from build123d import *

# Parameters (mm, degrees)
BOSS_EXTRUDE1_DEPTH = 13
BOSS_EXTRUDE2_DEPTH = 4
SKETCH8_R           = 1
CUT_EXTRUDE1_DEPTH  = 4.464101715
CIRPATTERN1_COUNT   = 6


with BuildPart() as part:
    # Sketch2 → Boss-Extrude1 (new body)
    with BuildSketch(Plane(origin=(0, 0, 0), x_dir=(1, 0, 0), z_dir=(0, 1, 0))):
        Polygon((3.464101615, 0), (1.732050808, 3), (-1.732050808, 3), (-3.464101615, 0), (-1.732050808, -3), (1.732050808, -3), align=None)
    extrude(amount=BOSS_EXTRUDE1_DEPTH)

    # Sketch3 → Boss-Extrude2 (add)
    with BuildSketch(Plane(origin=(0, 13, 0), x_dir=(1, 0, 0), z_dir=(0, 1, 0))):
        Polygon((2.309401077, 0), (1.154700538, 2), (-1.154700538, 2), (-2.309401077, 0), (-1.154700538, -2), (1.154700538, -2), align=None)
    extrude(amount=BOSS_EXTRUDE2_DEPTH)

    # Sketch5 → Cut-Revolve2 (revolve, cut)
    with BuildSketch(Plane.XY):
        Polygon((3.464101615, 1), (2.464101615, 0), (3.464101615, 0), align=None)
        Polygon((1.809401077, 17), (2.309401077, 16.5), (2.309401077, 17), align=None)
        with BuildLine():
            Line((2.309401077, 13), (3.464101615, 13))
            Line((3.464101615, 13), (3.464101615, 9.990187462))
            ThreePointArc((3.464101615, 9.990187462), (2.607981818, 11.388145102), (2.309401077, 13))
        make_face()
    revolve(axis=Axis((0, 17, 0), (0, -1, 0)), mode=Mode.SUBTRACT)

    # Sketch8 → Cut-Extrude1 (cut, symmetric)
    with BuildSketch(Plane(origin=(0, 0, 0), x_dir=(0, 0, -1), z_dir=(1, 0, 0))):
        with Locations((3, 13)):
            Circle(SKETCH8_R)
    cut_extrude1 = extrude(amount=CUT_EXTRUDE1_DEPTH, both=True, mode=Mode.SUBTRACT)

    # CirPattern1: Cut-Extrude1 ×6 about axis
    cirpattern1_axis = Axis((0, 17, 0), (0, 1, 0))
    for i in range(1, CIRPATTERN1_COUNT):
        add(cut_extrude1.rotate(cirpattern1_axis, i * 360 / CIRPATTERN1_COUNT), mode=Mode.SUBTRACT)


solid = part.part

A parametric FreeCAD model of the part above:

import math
import FreeCAD as App
import Part
import Sketcher
Q = App.Units.Quantity


def add_polygon(sketch, points):
    """Adds a closed chain of lines whose ends are joined by coincident constraints."""
    first, n = sketch.GeometryCount, len(points)
    for a, b in zip(points, points[1:] + points[:1]):
        sketch.addGeometry(Part.LineSegment(App.Vector(*a, 0), App.Vector(*b, 0)), False)
    for i in range(n):
        sketch.addConstraint(Sketcher.Constraint("Coincident", first + i, 2, first + (i + 1) % n, 1))

doc = App.newDocument("Part")
params = doc.addObject("Spreadsheet::Sheet", "Params")
for row, (alias, value) in enumerate([
    ("pad1_length", "13 mm"),
    ("pad2_length", "4 mm"),
    ("sketch3_radius", "4.5 mm"),
    ("sketch3_width", "1 mm"),
    ("sketch3_width2", "0.5 mm"),
    ("groove_angle", "360 deg"),
    ("sketch4_diameter", "2 mm"),
    ("pocket1_length", "8.928203 mm"),
], start=1):
    params.set(f"A{row}", alias)
    params.set(f"B{row}", "=" + value)
    params.setAlias(f"B{row}", alias)

body = doc.addObject("PartDesign::Body", "Body")

sketch1 = doc.addObject("Sketcher::SketchObject", "Sketch")
body.addObject(sketch1)
sketch1.AttachmentSupport = (doc.XZ_Plane, [""])
sketch1.MapMode = "FlatFace"
add_polygon(sketch1, [(3.5, 0), (1.7, -3), (-1.7, -3), (-3.5, 0), (-1.7, 3), (1.7, 3)])
sketch1.addConstraint([
    Sketcher.Constraint("Horizontal", 1),
    Sketcher.Constraint("Horizontal", 4),
    Sketcher.Constraint("Symmetric", 0, 2, 3, 2, -1, 1),
    Sketcher.Constraint("Symmetric", 2, 2, 5, 2, -1, 1),
    Sketcher.Constraint("PointOnObject", 2, 2, -1),
    Sketcher.Constraint("Parallel", 2, 5),
    Sketcher.Constraint("Vertical", 1, 2, 3, 2),
    Sketcher.Constraint("Angle", 0, Q("-120 deg")),
    Sketcher.Constraint("DistanceY", 0, 2, -1, 1, 3.0),
    Sketcher.Constraint("DistanceX", 1, 2, 1, 1, 3.464102),
])
pad1 = doc.addObject("PartDesign::Pad", "Pad")
body.addObject(pad1)
pad1.Profile = sketch1
pad1.setExpression("Length", "Params.pad1_length")
pad1.Reversed = True

sketch2 = doc.addObject("Sketcher::SketchObject", "Sketch001")
body.addObject(sketch2)
sketch2.AttachmentSupport = (doc.XZ_Plane, [""])
sketch2.MapMode = "FlatFace"
sketch2.AttachmentOffset = App.Placement(App.Vector(0, 0, -13), App.Rotation())
add_polygon(sketch2, [(2.3, 0), (1.2, -2), (-1.2, -2), (-2.3, 0), (-1.2, 2), (1.2, 2)])
sketch2.addConstraint([
    Sketcher.Constraint("Horizontal", 1),
    Sketcher.Constraint("Horizontal", 4),
    Sketcher.Constraint("Symmetric", 0, 2, 3, 2, -1, 1),
    Sketcher.Constraint("Symmetric", 2, 2, 5, 2, -1, 1),
    Sketcher.Constraint("PointOnObject", 2, 2, -1),
    Sketcher.Constraint("Parallel", 2, 5),
    Sketcher.Constraint("Vertical", 1, 2, 3, 2),
    Sketcher.Constraint("Angle", 0, Q("-120 deg")),
    Sketcher.Constraint("DistanceY", 0, 2, -1, 1, 2.0),
    Sketcher.Constraint("DistanceX", 1, 2, 1, 1, 2.309401),
])
pad2 = doc.addObject("PartDesign::Pad", "Pad001")
body.addObject(pad2)
pad2.Profile = sketch2
pad2.setExpression("Length", "Params.pad2_length")
pad2.Reversed = True

sketch3 = doc.addObject("Sketcher::SketchObject", "Sketch002")
body.addObject(sketch3)
sketch3.AttachmentSupport = (doc.XY_Plane, [""])
sketch3.MapMode = "FlatFace"
add_polygon(sketch3, [(3.5, 1), (2.5, 0), (3.5, 0)])
add_polygon(sketch3, [(1.8, 17), (2.3, 16.5), (2.3, 17)])
sketch3.addGeometry(Part.LineSegment(App.Vector(3.5, 13, 0), App.Vector(2.3, 13, 0)), False)
sketch3.addGeometry(Part.ArcOfCircle(Part.Circle(App.Vector(6.8, 13, 0), App.Vector(0, 0, 1), 4.5), math.radians(180), math.radians(222)), False)
sketch3.addGeometry(Part.LineSegment(App.Vector(3.5, 10, 0), App.Vector(3.5, 13, 0)), False)
sketch3.addConstraint([
    Sketcher.Constraint("Coincident", 6, 2, 7, 1),
    Sketcher.Constraint("Coincident", 7, 2, 8, 1),
    Sketcher.Constraint("Coincident", 8, 2, 6, 1),
    Sketcher.Constraint("Horizontal", 1),
    Sketcher.Constraint("Vertical", 2),
    Sketcher.Constraint("Vertical", 4),
    Sketcher.Constraint("Horizontal", 5),
    Sketcher.Constraint("Horizontal", 6),
    Sketcher.Constraint("Vertical", 8),
    Sketcher.Constraint("PointOnObject", 0, 2, -1),
    Sketcher.Constraint("Perpendicular", 0, 3),
    Sketcher.Constraint("Horizontal", 7, 3, 6, 2),
    Sketcher.Constraint("Vertical", 4, 2, 6, 2),
    Sketcher.Constraint("Vertical", 2, 2, 7, 2),
    Sketcher.Constraint("Equal", 1, 2),
    Sketcher.Constraint("Radius", 7, 4.5),
    Sketcher.Constraint("DistanceX", 1, 1, 1, 2, 1.0),
    Sketcher.Constraint("DistanceX", 5, 2, 5, 1, 0.5),
    Sketcher.Constraint("DistanceY", -1, 1, 7, 3, 13.0),
    Sketcher.Constraint("DistanceY", -1, 1, 4, 2, 17.0),
    Sketcher.Constraint("DistanceX", 6, 2, 6, 1, 1.154701),
    Sketcher.Constraint("DistanceX", -1, 1, 7, 3, 6.809401),
])
sketch3.setExpression("Constraints[21]", "Params.sketch3_radius")
sketch3.setExpression("Constraints[22]", "Params.sketch3_width")
sketch3.setExpression("Constraints[23]", "Params.sketch3_width2")
groove = doc.addObject("PartDesign::Groove", "Groove")
body.addObject(groove)
groove.Profile = sketch3
groove.ReferenceAxis = (sketch3, ["V_Axis"])
groove.setExpression("Angle", "Params.groove_angle")

sketch4 = doc.addObject("Sketcher::SketchObject", "Sketch003")
body.addObject(sketch4)
sketch4.AttachmentSupport = (doc.YZ_Plane, [""])
sketch4.MapMode = "FlatFace"
sketch4.addGeometry(Part.Circle(App.Vector(13, -3, 0), App.Vector(0, 0, 1), 1), False)
sketch4.addConstraint([
    Sketcher.Constraint("Diameter", 0, 2.0),
    Sketcher.Constraint("DistanceX", -1, 1, 0, 3, 13.0),
    Sketcher.Constraint("DistanceY", 0, 3, -1, 1, 3.0),
])
sketch4.setExpression("Constraints[0]", "Params.sketch4_diameter")
pocket1 = doc.addObject("PartDesign::Pocket", "Pocket")
body.addObject(pocket1)
pocket1.Profile = sketch4
pocket1.setExpression("Length", "Params.pocket1_length")
pocket1.Midplane = True
doc.recompute()

polarpattern = doc.addObject("PartDesign::PolarPattern", "PolarPattern")
body.addObject(polarpattern)
polarpattern.Originals = [pocket1]
polarpattern.Axis = (doc.Y_Axis, [""])
polarpattern.Angle = 360
polarpattern.Occurrences = 6
body.Tip = polarpattern

doc.recompute()
